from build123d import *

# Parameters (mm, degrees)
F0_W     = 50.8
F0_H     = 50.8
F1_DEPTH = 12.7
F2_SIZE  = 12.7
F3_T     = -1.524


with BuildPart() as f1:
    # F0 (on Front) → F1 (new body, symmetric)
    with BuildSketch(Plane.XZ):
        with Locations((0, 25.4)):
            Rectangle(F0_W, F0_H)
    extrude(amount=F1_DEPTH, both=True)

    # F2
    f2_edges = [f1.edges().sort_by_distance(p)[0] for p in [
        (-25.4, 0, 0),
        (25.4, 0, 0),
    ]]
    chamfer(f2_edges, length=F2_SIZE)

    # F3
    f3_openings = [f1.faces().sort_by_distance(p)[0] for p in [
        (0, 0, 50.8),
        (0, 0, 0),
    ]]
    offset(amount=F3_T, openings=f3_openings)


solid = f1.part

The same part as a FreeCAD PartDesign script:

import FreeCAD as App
import Part
import Sketcher
from FreeCAD import Vector
Q = App.Units.Quantity


def edges_at(feature, points):
    """Names of the edges that pass closest to the given points."""
    edges = feature.Shape.Edges
    near = lambda p: min(range(len(edges)), key=lambda i: edges[i].distToShape(Part.Vertex(*p))[0])
    return sorted({f"Edge{near(p) + 1}" for p in points})


def faces_at(feature, points):
    """Names of the faces that lie closest to the given points."""
    faces = feature.Shape.Faces
    near = lambda p: min(range(len(faces)), key=lambda i: faces[i].distToShape(Part.Vertex(*p))[0])
    return sorted({f"Face{near(p) + 1}" for p in points})


def add_polygon(sketch, points):
    """Adds a closed chain of lines whose ends are joined by coincident constraints."""
    first, n = sketch.GeometryCount, len(points)
    for a, b in zip(points, points[1:] + points[:1]):
        sketch.addGeometry(Part.LineSegment(App.Vector(*a, 0), App.Vector(*b, 0)), False)
    for i in range(n):
        sketch.addConstraint(Sketcher.Constraint("Coincident", first + i, 2, first + (i + 1) % n, 1))

doc = App.newDocument("Part")
body = doc.addObject("PartDesign::Body", "Body")

sketch1 = body.newObject("Sketcher::SketchObject", "Sketch")
sketch1.AttachmentSupport = (doc.getObject("XZ_Plane"), [""])
sketch1.MapMode = "FlatFace"
add_polygon(sketch1, [(-25, 51), (-25, 0), (25, 0), (25, 51)])
sketch1.addConstraint(Sketcher.Constraint("Vertical", 0))
sketch1.addConstraint(Sketcher.Constraint("Horizontal", 1))
sketch1.addConstraint(Sketcher.Constraint("Vertical", 2))
sketch1.addConstraint(Sketcher.Constraint("Horizontal", 3))
sketch1.addConstraint(Sketcher.Constraint("Symmetric", 0, 2, 1, 2, -1, 1))
sketch1.addConstraint(Sketcher.Constraint("Equal", 3, 0))
sketch1.addConstraint(Sketcher.Constraint("DistanceX", 1, 1, 1, 2, Q("2 in")))
pad1 = body.newObject("PartDesign::Pad", "Pad")
pad1.Profile = sketch1
pad1.Length = Q("1 in")
pad1.Midplane = True
doc.recompute()

chamfer = body.newObject("PartDesign::Chamfer", "Chamfer")
chamfer.Base = (pad1, edges_at(pad1, [(-25.4, 0, 0), (25.4, 0, 0)]))
chamfer.Size = Q("0.5 in")
doc.recompute()

thickness = body.newObject("PartDesign::Thickness", "Thickness")
thickness.Base = (chamfer, faces_at(chamfer, [(0, 0, 50.8), (0, 0, 0)]))
thickness.Value = Q("0.06 in")
thickness.Reversed = True
thickness.Join = "Arc"

doc.recompute()
